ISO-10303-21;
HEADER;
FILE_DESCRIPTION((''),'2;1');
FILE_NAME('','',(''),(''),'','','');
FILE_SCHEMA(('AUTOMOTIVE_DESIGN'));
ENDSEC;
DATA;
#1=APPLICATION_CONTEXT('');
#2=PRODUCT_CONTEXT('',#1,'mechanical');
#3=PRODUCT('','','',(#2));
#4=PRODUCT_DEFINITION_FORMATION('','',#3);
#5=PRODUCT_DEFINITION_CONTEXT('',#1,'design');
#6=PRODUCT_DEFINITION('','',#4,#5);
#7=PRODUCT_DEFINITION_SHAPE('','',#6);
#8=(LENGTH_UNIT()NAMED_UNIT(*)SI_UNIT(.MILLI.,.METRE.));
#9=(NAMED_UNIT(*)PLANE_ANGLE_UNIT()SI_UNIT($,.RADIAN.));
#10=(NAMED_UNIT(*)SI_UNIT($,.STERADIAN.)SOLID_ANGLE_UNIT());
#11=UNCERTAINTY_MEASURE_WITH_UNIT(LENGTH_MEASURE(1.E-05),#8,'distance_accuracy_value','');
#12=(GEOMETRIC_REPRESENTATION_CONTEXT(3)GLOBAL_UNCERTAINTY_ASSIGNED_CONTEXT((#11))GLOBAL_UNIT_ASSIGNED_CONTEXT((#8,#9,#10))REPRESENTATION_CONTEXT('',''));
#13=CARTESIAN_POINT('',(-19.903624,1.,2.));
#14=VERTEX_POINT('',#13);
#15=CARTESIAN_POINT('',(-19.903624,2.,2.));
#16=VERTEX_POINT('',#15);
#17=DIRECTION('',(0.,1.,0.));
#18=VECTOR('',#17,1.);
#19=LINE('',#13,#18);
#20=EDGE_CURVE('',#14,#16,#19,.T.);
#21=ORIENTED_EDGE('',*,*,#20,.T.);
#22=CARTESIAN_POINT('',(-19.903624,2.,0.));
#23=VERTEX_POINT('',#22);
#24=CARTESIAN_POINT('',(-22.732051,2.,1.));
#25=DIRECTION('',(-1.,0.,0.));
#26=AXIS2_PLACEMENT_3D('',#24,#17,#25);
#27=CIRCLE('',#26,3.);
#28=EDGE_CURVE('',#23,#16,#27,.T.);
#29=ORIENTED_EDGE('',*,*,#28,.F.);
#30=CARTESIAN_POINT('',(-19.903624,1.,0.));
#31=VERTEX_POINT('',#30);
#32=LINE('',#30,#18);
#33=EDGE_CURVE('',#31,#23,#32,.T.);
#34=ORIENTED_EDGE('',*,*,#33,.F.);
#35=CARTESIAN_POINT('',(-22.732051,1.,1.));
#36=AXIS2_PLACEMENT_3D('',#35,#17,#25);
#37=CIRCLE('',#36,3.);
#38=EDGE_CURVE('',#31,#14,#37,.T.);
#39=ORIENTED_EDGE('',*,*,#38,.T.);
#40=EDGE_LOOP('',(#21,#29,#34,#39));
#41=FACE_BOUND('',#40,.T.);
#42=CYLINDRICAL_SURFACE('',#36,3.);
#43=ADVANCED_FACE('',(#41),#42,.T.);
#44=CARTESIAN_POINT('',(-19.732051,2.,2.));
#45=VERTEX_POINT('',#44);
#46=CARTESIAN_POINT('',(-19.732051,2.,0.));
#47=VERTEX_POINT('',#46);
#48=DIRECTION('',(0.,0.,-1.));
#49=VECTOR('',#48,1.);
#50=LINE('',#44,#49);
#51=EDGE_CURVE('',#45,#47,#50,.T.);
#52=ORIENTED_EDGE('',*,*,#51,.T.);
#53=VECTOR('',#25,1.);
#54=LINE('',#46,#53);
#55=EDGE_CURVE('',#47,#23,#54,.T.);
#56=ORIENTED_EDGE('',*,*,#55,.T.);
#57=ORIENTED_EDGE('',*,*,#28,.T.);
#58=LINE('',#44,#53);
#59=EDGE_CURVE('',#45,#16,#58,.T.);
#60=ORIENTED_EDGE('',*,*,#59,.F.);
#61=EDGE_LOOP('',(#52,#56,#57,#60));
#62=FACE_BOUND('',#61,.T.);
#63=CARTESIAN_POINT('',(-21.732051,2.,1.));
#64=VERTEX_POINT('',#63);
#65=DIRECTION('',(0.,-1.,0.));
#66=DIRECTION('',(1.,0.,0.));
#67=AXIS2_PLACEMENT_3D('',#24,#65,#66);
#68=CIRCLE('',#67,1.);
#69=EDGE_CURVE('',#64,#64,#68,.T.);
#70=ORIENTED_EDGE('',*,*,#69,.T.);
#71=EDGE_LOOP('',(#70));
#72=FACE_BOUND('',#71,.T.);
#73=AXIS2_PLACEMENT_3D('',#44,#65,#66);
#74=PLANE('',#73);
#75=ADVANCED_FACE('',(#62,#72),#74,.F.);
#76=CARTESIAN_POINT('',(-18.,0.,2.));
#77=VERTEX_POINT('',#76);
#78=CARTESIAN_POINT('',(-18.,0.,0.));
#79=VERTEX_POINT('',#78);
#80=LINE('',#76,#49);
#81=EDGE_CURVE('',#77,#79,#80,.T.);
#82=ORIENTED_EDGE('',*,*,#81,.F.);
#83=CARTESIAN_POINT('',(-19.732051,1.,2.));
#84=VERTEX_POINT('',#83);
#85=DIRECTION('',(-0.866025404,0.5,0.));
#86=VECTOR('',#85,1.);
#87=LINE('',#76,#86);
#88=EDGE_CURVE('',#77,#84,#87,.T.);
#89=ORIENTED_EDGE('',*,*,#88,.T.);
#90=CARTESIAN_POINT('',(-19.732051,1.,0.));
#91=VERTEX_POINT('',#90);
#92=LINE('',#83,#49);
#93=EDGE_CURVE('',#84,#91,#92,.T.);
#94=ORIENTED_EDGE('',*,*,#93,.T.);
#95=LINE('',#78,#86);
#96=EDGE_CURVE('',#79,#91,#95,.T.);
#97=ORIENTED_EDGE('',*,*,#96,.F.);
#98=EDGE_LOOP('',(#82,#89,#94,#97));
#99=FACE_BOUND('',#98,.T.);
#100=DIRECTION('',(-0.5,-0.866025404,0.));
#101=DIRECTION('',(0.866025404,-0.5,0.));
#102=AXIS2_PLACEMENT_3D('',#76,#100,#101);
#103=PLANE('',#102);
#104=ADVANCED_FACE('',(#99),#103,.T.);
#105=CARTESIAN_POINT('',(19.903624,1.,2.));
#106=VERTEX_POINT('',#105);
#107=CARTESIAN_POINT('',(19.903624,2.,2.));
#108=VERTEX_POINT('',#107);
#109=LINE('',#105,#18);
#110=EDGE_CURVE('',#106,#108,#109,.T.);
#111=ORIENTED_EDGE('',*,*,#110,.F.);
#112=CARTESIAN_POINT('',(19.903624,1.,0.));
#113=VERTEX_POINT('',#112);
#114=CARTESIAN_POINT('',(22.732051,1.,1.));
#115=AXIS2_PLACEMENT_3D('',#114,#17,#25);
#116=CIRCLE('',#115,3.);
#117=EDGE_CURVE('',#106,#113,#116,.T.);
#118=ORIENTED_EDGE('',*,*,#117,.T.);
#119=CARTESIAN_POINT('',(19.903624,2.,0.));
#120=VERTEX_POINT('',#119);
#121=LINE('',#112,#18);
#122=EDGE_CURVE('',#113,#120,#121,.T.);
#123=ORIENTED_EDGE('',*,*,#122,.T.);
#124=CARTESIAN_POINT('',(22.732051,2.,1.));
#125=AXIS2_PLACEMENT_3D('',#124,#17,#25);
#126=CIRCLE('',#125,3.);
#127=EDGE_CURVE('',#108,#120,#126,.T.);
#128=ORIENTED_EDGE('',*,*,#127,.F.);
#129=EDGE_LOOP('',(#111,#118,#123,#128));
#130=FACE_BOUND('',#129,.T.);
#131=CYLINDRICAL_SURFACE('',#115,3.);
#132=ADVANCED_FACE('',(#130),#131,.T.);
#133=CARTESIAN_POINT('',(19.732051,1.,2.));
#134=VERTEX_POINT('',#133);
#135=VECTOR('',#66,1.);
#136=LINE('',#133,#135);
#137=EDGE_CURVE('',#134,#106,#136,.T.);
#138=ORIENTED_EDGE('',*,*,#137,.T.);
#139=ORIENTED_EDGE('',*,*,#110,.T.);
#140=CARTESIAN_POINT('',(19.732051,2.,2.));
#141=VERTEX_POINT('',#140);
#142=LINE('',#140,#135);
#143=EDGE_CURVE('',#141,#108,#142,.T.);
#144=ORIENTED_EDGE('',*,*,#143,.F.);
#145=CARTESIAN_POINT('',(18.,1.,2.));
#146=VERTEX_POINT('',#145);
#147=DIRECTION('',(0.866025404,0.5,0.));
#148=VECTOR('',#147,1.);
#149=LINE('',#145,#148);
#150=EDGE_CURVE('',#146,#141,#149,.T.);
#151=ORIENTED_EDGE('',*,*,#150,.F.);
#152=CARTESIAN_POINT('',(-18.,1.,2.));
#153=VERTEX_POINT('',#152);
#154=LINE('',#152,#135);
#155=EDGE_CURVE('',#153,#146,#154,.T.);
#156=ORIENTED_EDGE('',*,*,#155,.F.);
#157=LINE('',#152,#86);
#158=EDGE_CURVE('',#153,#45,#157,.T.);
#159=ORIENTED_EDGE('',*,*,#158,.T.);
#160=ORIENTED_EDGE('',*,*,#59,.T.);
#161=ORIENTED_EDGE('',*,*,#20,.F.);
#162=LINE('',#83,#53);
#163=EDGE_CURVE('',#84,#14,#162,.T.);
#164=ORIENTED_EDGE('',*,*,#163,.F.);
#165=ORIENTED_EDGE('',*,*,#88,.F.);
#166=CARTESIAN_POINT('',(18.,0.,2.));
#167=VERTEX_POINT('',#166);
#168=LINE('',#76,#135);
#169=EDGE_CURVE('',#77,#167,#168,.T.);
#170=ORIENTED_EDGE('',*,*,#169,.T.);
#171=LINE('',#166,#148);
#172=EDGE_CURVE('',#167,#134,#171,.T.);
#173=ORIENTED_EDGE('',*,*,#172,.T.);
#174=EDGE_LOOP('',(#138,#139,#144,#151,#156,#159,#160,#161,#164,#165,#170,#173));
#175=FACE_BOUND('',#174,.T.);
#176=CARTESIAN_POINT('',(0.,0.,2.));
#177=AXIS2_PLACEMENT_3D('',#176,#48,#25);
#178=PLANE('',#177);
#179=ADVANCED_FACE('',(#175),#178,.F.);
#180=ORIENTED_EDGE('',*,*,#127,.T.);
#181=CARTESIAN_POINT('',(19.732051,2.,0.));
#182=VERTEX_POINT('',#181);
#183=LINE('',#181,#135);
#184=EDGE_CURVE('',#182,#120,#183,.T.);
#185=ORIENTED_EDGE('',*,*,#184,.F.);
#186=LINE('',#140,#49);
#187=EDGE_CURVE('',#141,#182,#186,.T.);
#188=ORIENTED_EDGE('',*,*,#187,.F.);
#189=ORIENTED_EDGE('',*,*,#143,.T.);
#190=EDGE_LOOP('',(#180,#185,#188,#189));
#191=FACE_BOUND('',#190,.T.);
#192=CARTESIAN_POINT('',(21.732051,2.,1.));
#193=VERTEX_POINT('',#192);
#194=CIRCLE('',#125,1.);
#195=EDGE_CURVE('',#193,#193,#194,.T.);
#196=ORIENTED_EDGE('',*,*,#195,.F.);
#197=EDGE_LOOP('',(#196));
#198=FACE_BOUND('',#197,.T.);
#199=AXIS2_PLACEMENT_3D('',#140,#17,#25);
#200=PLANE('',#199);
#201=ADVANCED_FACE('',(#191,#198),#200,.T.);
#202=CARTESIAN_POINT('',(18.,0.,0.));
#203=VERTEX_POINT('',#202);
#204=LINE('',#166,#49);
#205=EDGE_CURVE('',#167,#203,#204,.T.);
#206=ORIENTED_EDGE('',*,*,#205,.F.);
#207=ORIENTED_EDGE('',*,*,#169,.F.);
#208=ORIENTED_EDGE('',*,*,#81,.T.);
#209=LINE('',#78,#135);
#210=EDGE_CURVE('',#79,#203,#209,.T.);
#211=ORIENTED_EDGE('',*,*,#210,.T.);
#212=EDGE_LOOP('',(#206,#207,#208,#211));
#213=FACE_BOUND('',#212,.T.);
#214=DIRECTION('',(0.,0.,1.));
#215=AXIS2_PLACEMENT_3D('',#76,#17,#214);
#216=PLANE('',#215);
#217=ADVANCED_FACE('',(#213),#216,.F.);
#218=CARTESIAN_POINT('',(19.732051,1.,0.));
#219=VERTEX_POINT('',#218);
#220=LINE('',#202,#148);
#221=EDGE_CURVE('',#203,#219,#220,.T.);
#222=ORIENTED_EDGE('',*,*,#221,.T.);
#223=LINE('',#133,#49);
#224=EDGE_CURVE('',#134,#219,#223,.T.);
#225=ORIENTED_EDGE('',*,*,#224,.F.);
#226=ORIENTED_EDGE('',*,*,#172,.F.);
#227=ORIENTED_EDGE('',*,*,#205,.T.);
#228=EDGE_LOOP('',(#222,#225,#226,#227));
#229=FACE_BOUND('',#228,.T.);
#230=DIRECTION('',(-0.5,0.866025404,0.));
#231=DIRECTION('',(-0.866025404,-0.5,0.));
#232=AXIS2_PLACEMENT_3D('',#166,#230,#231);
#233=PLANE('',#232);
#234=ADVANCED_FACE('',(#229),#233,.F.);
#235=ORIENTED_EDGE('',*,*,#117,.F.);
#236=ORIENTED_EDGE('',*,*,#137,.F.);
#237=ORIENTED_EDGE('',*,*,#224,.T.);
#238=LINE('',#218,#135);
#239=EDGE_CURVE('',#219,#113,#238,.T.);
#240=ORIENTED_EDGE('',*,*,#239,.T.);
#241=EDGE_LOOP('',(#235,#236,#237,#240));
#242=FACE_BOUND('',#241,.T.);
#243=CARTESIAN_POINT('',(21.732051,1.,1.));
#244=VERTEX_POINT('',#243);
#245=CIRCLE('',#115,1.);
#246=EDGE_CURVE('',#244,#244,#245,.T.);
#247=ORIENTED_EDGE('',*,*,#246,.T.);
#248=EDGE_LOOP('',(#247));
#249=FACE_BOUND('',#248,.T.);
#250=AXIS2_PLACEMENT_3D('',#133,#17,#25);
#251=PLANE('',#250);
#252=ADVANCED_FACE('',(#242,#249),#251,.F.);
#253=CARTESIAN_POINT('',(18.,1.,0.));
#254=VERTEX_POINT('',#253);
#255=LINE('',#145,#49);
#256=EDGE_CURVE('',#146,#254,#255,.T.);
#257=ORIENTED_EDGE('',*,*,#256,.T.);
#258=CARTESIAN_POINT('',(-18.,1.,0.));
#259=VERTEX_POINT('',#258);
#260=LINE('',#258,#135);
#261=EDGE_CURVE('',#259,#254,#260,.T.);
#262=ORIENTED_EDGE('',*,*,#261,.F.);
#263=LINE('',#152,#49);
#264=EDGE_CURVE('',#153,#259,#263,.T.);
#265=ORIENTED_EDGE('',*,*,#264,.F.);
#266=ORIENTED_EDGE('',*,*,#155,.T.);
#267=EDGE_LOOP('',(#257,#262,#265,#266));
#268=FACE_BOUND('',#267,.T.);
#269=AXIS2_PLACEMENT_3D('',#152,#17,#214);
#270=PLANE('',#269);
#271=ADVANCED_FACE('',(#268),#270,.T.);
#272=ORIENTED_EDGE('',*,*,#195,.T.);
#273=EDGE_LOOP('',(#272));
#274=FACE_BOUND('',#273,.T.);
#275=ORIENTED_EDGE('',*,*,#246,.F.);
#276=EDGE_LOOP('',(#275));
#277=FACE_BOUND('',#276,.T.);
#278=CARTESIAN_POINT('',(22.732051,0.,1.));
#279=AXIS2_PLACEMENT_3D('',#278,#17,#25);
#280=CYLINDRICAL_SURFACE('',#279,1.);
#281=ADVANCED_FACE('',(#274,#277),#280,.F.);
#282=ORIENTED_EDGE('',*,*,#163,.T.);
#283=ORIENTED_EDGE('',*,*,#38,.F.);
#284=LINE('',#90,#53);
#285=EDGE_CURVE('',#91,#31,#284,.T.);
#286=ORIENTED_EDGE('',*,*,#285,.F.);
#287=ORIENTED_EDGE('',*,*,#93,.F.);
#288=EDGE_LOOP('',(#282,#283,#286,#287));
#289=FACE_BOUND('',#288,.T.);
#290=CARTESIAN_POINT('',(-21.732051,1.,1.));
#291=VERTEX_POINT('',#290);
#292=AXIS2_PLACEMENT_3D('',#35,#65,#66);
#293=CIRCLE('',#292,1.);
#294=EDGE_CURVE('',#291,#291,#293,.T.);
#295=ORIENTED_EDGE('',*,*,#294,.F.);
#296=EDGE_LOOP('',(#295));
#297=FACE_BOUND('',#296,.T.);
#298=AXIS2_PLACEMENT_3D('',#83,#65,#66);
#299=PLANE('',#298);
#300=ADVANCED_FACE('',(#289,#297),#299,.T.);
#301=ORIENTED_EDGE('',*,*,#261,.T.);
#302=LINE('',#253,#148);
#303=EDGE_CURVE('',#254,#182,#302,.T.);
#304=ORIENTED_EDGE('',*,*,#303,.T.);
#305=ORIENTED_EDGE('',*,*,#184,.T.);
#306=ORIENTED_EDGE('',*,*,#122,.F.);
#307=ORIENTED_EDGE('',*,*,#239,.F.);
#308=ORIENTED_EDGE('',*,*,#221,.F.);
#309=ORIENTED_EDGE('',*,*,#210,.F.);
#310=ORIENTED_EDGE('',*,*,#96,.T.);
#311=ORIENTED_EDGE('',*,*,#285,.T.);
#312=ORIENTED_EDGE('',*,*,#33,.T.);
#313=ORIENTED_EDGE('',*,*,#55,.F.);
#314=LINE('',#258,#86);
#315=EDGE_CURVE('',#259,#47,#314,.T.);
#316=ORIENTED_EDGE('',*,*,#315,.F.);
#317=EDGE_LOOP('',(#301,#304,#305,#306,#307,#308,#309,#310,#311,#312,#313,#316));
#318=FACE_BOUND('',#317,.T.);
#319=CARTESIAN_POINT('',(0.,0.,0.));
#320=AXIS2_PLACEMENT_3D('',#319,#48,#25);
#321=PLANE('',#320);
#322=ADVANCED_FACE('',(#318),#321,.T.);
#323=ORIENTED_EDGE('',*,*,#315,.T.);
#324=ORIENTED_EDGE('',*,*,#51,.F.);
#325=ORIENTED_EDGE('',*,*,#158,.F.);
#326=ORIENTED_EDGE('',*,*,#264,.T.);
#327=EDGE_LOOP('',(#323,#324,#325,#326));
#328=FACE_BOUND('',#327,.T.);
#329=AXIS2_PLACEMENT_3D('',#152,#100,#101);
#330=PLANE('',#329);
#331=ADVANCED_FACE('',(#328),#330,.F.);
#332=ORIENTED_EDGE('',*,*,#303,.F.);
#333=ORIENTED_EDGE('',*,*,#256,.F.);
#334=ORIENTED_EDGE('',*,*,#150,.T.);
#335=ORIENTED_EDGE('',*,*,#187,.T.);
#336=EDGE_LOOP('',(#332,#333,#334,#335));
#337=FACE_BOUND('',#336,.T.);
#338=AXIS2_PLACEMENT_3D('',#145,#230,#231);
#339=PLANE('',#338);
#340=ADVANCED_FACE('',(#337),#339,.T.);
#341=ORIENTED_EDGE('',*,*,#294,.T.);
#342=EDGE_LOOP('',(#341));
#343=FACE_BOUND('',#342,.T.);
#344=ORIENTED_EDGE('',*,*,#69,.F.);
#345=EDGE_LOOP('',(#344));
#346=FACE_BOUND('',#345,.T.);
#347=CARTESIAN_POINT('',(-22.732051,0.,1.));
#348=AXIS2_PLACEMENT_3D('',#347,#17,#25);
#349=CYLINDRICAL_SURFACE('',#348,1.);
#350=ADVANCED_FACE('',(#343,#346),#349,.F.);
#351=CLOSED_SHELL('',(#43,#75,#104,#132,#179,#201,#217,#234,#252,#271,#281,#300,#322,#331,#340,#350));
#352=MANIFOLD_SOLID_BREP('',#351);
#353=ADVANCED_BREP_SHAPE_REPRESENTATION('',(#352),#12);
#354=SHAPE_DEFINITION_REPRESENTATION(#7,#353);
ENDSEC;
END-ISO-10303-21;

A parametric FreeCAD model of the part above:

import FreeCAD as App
import Part
import Sketcher
from FreeCAD import Vector
Q = App.Units.Quantity

doc = App.newDocument("Part")
body = doc.addObject("PartDesign::Body", "Body")

# Sketch on XY plane
sketch1 = body.newObject("Sketcher::SketchObject", "Sketch")
sketch1.AttachmentSupport = (doc.getObject("XY_Plane"), [""])
sketch1.MapMode = "FlatFace"
sketch1.addGeometry([
    Part.LineSegment(Vector(-18, 0, 0), Vector(18, 0, 0)),  # 0
    Part.LineSegment(Vector(18, 0, 0), Vector(19.7, 1, 0)),  # 1
    Part.LineSegment(Vector(19.7, 1, 0), Vector(21, 1, 0)),  # 2
    Part.LineSegment(Vector(21, 1, 0), Vector(21, 2, 0)),  # 3
    Part.LineSegment(Vector(21, 2, 0), Vector(19.7, 2, 0)),  # 4
    Part.LineSegment(Vector(19.7, 2, 0), Vector(18, 1, 0)),  # 5
    Part.LineSegment(Vector(18, 1, 0), Vector(-18, 1, 0)),  # 6
    Part.LineSegment(Vector(-18, 1, 0), Vector(-19.7, 2, 0)),  # 7
    Part.LineSegment(Vector(-19.7, 2, 0), Vector(-21, 2, 0)),  # 8
    Part.LineSegment(Vector(-21, 2, 0), Vector(-21, 1, 0)),  # 9
    Part.LineSegment(Vector(-21, 1, 0), Vector(-19.7, 1, 0)),  # 10
    Part.LineSegment(Vector(-19.7, 1, 0), Vector(-18, 0, 0)),  # 11
], False)
sketch1.addConstraint([
    Sketcher.Constraint("Coincident", 0, 2, 1, 1),
    Sketcher.Constraint("Coincident", 1, 2, 2, 1),
    Sketcher.Constraint("Coincident", 2, 2, 3, 1),
    Sketcher.Constraint("Coincident", 3, 2, 4, 1),
    Sketcher.Constraint("Coincident", 4, 2, 5, 1),
    Sketcher.Constraint("Coincident", 5, 2, 6, 1),
    Sketcher.Constraint("Coincident", 6, 2, 7, 1),
    Sketcher.Constraint("Coincident", 7, 2, 8, 1),
    Sketcher.Constraint("Coincident", 8, 2, 9, 1),
    Sketcher.Constraint("Coincident", 9, 2, 10, 1),
    Sketcher.Constraint("Coincident", 10, 2, 11, 1),
    Sketcher.Constraint("Coincident", 11, 2, 0, 1),
    Sketcher.Constraint("Horizontal", 0),
    Sketcher.Constraint("Horizontal", 2),
    Sketcher.Constraint("Vertical", 3),
    Sketcher.Constraint("Horizontal", 4),
    Sketcher.Constraint("Horizontal", 6),
    Sketcher.Constraint("Horizontal", 8),
    Sketcher.Constraint("Vertical", 9),
    Sketcher.Constraint("Horizontal", 10),
    Sketcher.Constraint("Symmetric", 0, 2, 11, 2, -1, 1),
    Sketcher.Constraint("Symmetric", 4, 2, 7, 2, -2),
    Sketcher.Constraint("Symmetric", 2, 2, 9, 2, -2),
    Sketcher.Constraint("Parallel", 1, 5),
    Sketcher.Constraint("Parallel", 7, 11),
    Sketcher.Constraint("Horizontal", 2, 2, 5, 2),
    Sketcher.Constraint("Vertical", 1, 2, 4, 2),
    Sketcher.Constraint("Vertical", 0, 2, 5, 2),
    Sketcher.Constraint("Vertical", 7, 2, 10, 2),
    Sketcher.Constraint("DistanceX", 0, 1, 0, 2, Q("36 mm")),
    Sketcher.Constraint("DistanceY", 3, 1, 3, 2, Q("1 mm")),
    Sketcher.Constraint("Angle", 1, Q("30 deg")),
    Sketcher.Constraint("DistanceX", 2, 1, 2, 2, Q("1.238095 mm")),
])
pad1 = body.newObject("PartDesign::Pad", "Pad")
pad1.Profile = sketch1
pad1.Length = 2

# Sketch on XZ plane
sketch2 = body.newObject("Sketcher::SketchObject", "Sketch001")
sketch2.AttachmentSupport = (doc.getObject("XZ_Plane"), [""])
sketch2.MapMode = "FlatFace"
sketch2.AttachmentOffset = App.Placement(Vector(0, 0, -2), App.Rotation())
sketch2.addGeometry(Part.Circle(Vector(-22.7, 1, 0), Vector(0, 0, 1), 3), False)
sketch2.addConstraint([
    Sketcher.Constraint("Diameter", 0, Q("6 mm")),
    Sketcher.Constraint("DistanceY", -1, 1, 0, 3, Q("1 mm")),
    Sketcher.Constraint("DistanceX", 0, 3, -1, 1, Q("22.732051 mm")),
])
pad2 = body.newObject("PartDesign::Pad", "Pad001")
pad2.Profile = sketch2
pad2.Length = 1

# Sketch on XZ plane
sketch3 = body.newObject("Sketcher::SketchObject", "Sketch002")
sketch3.AttachmentSupport = (doc.getObject("XZ_Plane"), [""])
sketch3.MapMode = "FlatFace"
sketch3.AttachmentOffset = App.Placement(Vector(0, 0, -2), App.Rotation())
sketch3.addGeometry(Part.Circle(Vector(22.7, 1, 0), Vector(0, 0, 1), 3), False)
sketch3.addConstraint([
    Sketcher.Constraint("Diameter", 0, Q("6 mm")),
    Sketcher.Constraint("DistanceY", -1, 1, 0, 3, Q("1 mm")),
    Sketcher.Constraint("DistanceX", -1, 1, 0, 3, Q("22.732051 mm")),
])
pad3 = body.newObject("PartDesign::Pad", "Pad002")
pad3.Profile = sketch3
pad3.Length = 1

# Sketch on XZ plane
sketch4 = body.newObject("Sketcher::SketchObject", "Sketch003")
sketch4.AttachmentSupport = (doc.getObject("XZ_Plane"), [""])
sketch4.MapMode = "FlatFace"
sketch4.AttachmentOffset = App.Placement(Vector(0, 0, -2), App.Rotation())
sketch4.addGeometry([
    Part.Circle(Vector(-22.7, 1, 0), Vector(0, 0, 1), 1),
    Part.Circle(Vector(22.7, 1, 0), Vector(0, 0, 1), 1),
], False)
sketch4.addConstraint([
    Sketcher.Constraint("Equal", 0, 1),
    Sketcher.Constraint("Symmetric", 0, 3, 1, 3, -2),
    Sketcher.Constraint("Diameter", 0, Q("2 mm")),
    Sketcher.Constraint("DistanceY", -1, 1, 0, 3, Q("1 mm")),
    Sketcher.Constraint("DistanceX", 0, 3, 1, 3, Q("45.464102 mm")),
])
pocket1 = body.newObject("PartDesign::Pocket", "Pocket")
pocket1.Profile = sketch4
pocket1.Type = "ThroughAll"
pocket1.Midplane = True

doc.recompute()
